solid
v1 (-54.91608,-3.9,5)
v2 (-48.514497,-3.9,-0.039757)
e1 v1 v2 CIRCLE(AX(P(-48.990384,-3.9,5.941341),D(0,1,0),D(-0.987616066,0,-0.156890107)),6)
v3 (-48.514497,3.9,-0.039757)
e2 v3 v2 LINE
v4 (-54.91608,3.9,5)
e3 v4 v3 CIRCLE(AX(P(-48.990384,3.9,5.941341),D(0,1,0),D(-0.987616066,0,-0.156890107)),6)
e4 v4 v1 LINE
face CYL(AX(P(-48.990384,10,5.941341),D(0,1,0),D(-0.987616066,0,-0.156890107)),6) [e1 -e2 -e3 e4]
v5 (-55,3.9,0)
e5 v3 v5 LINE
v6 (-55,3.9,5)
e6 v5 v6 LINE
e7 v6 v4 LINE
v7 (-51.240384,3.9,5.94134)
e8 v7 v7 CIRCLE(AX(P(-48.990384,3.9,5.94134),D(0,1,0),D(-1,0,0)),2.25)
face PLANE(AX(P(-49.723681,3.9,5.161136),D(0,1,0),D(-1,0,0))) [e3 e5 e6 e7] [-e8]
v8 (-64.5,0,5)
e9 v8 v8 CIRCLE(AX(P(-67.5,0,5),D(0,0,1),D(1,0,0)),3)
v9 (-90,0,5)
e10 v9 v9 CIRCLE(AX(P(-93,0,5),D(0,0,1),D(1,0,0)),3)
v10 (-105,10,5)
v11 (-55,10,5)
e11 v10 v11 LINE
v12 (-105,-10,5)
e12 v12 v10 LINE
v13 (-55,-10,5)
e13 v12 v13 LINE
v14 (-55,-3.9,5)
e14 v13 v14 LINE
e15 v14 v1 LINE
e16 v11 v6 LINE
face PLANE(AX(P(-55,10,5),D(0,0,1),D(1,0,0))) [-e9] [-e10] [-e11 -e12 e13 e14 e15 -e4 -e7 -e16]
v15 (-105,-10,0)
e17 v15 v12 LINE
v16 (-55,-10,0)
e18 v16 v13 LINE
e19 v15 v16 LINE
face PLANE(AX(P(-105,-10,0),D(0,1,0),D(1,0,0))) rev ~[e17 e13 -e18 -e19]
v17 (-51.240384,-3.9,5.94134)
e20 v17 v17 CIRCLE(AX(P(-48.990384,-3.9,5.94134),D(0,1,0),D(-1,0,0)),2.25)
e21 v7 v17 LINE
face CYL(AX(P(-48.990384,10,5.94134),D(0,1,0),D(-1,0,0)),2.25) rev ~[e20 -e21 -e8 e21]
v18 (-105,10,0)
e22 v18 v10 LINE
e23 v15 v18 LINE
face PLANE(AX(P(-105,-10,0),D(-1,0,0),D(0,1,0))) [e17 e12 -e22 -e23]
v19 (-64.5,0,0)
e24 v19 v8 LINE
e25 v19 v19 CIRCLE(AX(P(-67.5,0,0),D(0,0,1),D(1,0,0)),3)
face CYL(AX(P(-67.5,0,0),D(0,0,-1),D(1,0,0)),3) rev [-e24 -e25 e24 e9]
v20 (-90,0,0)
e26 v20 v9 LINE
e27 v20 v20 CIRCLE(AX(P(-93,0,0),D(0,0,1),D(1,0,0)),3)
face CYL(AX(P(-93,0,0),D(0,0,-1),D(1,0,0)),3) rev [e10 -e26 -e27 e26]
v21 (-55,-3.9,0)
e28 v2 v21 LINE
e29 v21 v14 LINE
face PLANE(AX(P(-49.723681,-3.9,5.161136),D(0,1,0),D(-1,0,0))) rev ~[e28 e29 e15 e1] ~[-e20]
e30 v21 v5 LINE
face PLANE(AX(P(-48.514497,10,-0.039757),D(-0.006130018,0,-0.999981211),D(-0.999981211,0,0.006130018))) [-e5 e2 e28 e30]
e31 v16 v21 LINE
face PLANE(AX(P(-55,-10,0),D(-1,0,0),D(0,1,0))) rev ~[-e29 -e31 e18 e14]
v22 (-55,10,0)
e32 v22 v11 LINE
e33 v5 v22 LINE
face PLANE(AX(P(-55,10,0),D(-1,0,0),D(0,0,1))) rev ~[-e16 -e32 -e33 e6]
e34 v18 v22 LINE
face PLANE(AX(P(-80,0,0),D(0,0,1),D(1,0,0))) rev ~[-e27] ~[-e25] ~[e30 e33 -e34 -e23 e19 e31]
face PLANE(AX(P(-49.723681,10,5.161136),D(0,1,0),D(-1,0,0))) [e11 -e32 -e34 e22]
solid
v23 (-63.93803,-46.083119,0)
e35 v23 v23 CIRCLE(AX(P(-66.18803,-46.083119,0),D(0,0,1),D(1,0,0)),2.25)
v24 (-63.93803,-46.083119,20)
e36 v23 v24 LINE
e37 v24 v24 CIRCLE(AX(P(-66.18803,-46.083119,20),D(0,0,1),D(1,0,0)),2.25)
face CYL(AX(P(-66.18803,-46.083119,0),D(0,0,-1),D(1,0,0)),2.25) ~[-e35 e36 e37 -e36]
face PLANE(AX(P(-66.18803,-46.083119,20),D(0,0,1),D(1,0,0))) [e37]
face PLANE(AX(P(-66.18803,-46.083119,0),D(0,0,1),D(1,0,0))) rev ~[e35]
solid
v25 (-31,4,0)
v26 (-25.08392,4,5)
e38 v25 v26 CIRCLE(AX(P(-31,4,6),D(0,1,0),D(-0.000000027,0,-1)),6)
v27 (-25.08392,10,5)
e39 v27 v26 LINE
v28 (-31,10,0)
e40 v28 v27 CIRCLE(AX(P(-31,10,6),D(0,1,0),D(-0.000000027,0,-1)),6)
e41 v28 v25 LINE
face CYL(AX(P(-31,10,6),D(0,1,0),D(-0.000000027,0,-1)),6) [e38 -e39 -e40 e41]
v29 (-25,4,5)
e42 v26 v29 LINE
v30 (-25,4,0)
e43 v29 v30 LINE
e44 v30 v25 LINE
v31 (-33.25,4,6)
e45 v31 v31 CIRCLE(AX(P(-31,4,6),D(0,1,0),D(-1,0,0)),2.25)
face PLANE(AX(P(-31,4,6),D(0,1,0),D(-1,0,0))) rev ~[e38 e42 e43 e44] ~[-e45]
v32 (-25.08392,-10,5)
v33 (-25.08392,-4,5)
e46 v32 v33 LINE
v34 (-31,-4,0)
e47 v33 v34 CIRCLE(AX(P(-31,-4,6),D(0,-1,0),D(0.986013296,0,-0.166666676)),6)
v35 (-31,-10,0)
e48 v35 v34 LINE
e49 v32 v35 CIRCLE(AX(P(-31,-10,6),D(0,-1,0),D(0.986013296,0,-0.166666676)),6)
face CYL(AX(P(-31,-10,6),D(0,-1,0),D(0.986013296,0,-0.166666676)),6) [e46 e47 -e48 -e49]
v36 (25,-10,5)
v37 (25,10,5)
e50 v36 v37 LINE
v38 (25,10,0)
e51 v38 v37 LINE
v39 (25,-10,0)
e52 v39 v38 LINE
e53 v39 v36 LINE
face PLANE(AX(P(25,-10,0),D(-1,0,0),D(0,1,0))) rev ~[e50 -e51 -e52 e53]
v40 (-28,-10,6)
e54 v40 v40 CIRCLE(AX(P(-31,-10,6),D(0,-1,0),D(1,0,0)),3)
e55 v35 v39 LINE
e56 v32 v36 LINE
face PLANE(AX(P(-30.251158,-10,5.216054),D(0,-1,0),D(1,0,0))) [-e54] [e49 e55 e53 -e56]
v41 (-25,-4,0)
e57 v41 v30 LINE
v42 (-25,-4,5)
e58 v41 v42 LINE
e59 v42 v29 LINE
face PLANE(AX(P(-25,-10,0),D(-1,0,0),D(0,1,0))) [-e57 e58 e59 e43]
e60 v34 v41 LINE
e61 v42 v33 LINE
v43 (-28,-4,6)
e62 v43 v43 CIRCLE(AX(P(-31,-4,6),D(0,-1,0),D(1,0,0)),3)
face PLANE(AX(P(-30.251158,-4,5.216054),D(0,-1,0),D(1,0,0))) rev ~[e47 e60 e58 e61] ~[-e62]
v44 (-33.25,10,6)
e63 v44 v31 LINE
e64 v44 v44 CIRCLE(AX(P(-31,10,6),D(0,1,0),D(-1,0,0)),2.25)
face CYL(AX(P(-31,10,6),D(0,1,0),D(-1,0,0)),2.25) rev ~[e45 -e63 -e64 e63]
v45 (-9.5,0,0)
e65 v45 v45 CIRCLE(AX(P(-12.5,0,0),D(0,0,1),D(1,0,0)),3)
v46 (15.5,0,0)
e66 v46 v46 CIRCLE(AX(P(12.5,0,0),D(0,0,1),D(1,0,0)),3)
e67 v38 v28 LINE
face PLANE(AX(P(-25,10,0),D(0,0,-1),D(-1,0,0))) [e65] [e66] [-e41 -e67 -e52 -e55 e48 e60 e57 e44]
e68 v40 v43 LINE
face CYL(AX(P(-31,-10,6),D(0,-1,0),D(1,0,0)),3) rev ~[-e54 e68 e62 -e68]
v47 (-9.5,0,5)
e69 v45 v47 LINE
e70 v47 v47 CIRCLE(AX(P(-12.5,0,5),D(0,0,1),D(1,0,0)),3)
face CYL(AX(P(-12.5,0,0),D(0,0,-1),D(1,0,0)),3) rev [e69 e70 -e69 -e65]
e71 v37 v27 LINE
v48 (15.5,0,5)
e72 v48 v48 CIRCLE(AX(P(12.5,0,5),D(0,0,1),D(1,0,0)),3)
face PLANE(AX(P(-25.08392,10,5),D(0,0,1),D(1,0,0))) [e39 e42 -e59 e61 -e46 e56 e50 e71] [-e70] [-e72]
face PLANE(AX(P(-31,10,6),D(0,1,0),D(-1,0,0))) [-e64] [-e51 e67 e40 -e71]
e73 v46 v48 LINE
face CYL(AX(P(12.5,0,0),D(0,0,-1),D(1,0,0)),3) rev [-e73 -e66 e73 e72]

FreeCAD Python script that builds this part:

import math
import FreeCAD as App
import Part
import Sketcher
from FreeCAD import Vector
Q = App.Units.Quantity


def add_polygon(sketch, points):
    """Adds a closed chain of lines whose ends are joined by coincident constraints."""
    first, n = sketch.GeometryCount, len(points)
    for a, b in zip(points, points[1:] + points[:1]):
        sketch.addGeometry(Part.LineSegment(App.Vector(*a, 0), App.Vector(*b, 0)), False)
    for i in range(n):
        sketch.addConstraint(Sketcher.Constraint("Coincident", first + i, 2, first + (i + 1) % n, 1))

doc = App.newDocument("Part")
body = doc.addObject("PartDesign::Body", "Body")
body.AllowCompound = True

sketch1 = body.newObject("Sketcher::SketchObject", "Sketch")
sketch1.AttachmentSupport = (doc.getObject("XY_Plane"), [""])
sketch1.MapMode = "FlatFace"
add_polygon(sketch1, [(-25, 10), (-25, -10), (25, -10), (25, 10)])
sketch1.addGeometry(Part.Circle(Vector(-12.5, 0, 0), Vector(0, 0, 1), 3), False)
sketch1.addGeometry(Part.Circle(Vector(12.5, 0, 0), Vector(0, 0, 1), 3), False)
add_polygon(sketch1, [(-105, 10), (-105, -10), (-55, -10), (-55, 10)])
sketch1.addGeometry(Part.Circle(Vector(-93, 0, 0), Vector(0, 0, 1), 3), False)
sketch1.addGeometry(Part.Circle(Vector(-67.5, 0, 0), Vector(0, 0, 1), 3), False)
sketch1.addConstraint(Sketcher.Constraint("Vertical", 0))
sketch1.addConstraint(Sketcher.Constraint("Horizontal", 1))
sketch1.addConstraint(Sketcher.Constraint("Vertical", 2))
sketch1.addConstraint(Sketcher.Constraint("Horizontal", 3))
sketch1.addConstraint(Sketcher.Constraint("Vertical", 6))
sketch1.addConstraint(Sketcher.Constraint("Horizontal", 7))
sketch1.addConstraint(Sketcher.Constraint("Vertical", 8))
sketch1.addConstraint(Sketcher.Constraint("Horizontal", 9))
sketch1.addConstraint(Sketcher.Constraint("Equal", 4, 5))
sketch1.addConstraint(Sketcher.Constraint("Equal", 5, 10))
sketch1.addConstraint(Sketcher.Constraint("Equal", 10, 11))
sketch1.addConstraint(Sketcher.Constraint("Symmetric", 4, 3, 5, 3, -1, 1))
sketch1.addConstraint(Sketcher.Constraint("Symmetric", 0, 2, 2, 2, -1, 1))
sketch1.addConstraint(Sketcher.Constraint("PointOnObject", 4, 3, -1))
sketch1.addConstraint(Sketcher.Constraint("PointOnObject", 10, 3, -1))
sketch1.addConstraint(Sketcher.Constraint("PointOnObject", 11, 3, -1))
sketch1.addConstraint(Sketcher.Constraint("Horizontal", 1, 2, 6, 2))
sketch1.addConstraint(Sketcher.Constraint("Horizontal", 3, 2, 8, 2))
sketch1.addConstraint(Sketcher.Constraint("Equal", 3, 7))
sketch1.addConstraint(Sketcher.Constraint("Diameter", 4, Q("6 mm")))
sketch1.addConstraint(Sketcher.Constraint("DistanceX", 1, 1, 1, 2, Q("50 mm")))
sketch1.addConstraint(Sketcher.Constraint("DistanceY", 0, 2, 0, 1, Q("20 mm")))
sketch1.addConstraint(Sketcher.Constraint("DistanceX", 10, 3, -1, 1, Q("93 mm")))
sketch1.addConstraint(Sketcher.Constraint("DistanceX", 6, 2, -1, 1, Q("105 mm")))
sketch1.addConstraint(Sketcher.Constraint("DistanceX", 4, 3, 5, 3, Q("25 mm")))
sketch1.addConstraint(Sketcher.Constraint("DistanceX", 11, 3, 4, 3, Q("55 mm")))
pad1 = body.newObject("PartDesign::Pad", "Pad")
pad1.Profile = sketch1
pad1.Length = 5

sketch2 = body.newObject("Sketcher::SketchObject", "Sketch001")
sketch2.AttachmentSupport = (doc.getObject("XZ_Plane"), [""])
sketch2.MapMode = "FlatFace"
sketch2.AttachmentOffset = App.Placement(Vector(0, 0, 10), App.Rotation())
sketch2.addGeometry(Part.LineSegment(Vector(-25, 5, 0), Vector(-25.08, 5, 0)), False)
sketch2.addGeometry(Part.ArcOfCircle(Part.Circle(Vector(-31, 6, 0), Vector(0, 0, 1), 6), math.radians(-10), math.radians(270)), False)
sketch2.addGeometry(Part.LineSegment(Vector(-31, 0, 0), Vector(-25, 0, 0)), False)
sketch2.addGeometry(Part.LineSegment(Vector(-25, 0, 0), Vector(-25, 5, 0)), False)
sketch2.addGeometry(Part.Circle(Vector(-31, 6, 0), Vector(0, 0, 1), 3), False)
sketch2.addConstraint(Sketcher.Constraint("Coincident", 0, 2, 1, 1))
sketch2.addConstraint(Sketcher.Constraint("Tangent", 1, 2, 2, 1))
sketch2.addConstraint(Sketcher.Constraint("Coincident", 2, 2, 3, 1))
sketch2.addConstraint(Sketcher.Constraint("Coincident", 3, 2, 0, 1))
sketch2.addConstraint(Sketcher.Constraint("Horizontal", 0))
sketch2.addConstraint(Sketcher.Constraint("Horizontal", 2))
sketch2.addConstraint(Sketcher.Constraint("Vertical", 3))
sketch2.addConstraint(Sketcher.Constraint("Coincident", 4, 3, 1, 3))
sketch2.addConstraint(Sketcher.Constraint("PointOnObject", 1, 2, -1))
sketch2.addConstraint(Sketcher.Constraint("Diameter", 4, Q("6 mm")))
sketch2.addConstraint(Sketcher.Constraint("Radius", 1, Q("6 mm")))
sketch2.addConstraint(Sketcher.Constraint("DistanceX", 2, 1, 2, 2, Q("6 mm")))
sketch2.addConstraint(Sketcher.Constraint("DistanceY", 3, 1, 3, 2, Q("5 mm")))
sketch2.addConstraint(Sketcher.Constraint("DistanceX", 1, 3, -1, 1, Q("31 mm")))
pad2 = body.newObject("PartDesign::Pad", "Pad001")
pad2.Profile = sketch2
pad2.Length = 6
pad2.Reversed = True

sketch3 = body.newObject("Sketcher::SketchObject", "Sketch002")
sketch3.AttachmentSupport = (doc.getObject("XZ_Plane"), [""])
sketch3.MapMode = "FlatFace"
sketch3.AttachmentOffset = App.Placement(Vector(0, 0, -10), App.Rotation())
sketch3.addGeometry(Part.LineSegment(Vector(-25.08, 5, 0), Vector(-25, 5, 0)), False)
sketch3.addGeometry(Part.LineSegment(Vector(-25, 5, 0), Vector(-25, 0, 0)), False)
sketch3.addGeometry(Part.LineSegment(Vector(-25, 0, 0), Vector(-31, 0, 0)), False)
sketch3.addGeometry(Part.ArcOfCircle(Part.Circle(Vector(-31, 6, 0), Vector(0, 0, 1), 6), math.radians(-10), math.radians(270)), False)
sketch3.addGeometry(Part.Circle(Vector(-31, 6, 0), Vector(0, 0, 1), 3), False)
sketch3.addConstraint(Sketcher.Constraint("Coincident", 0, 2, 1, 1))
sketch3.addConstraint(Sketcher.Constraint("Coincident", 1, 2, 2, 1))
sketch3.addConstraint(Sketcher.Constraint("Tangent", 2, 2, 3, 2))
sketch3.addConstraint(Sketcher.Constraint("Coincident", 3, 1, 0, 1))
sketch3.addConstraint(Sketcher.Constraint("Horizontal", 0))
sketch3.addConstraint(Sketcher.Constraint("Vertical", 1))
sketch3.addConstraint(Sketcher.Constraint("Horizontal", 2))
sketch3.addConstraint(Sketcher.Constraint("Coincident", 4, 3, 3, 3))
sketch3.addConstraint(Sketcher.Constraint("PointOnObject", 1, 2, -1))
sketch3.addConstraint(Sketcher.Constraint("Diameter", 4, Q("6 mm")))
sketch3.addConstraint(Sketcher.Constraint("Radius", 3, Q("6 mm")))
sketch3.addConstraint(Sketcher.Constraint("DistanceX", 2, 2, 2, 1, Q("6 mm")))
sketch3.addConstraint(Sketcher.Constraint("DistanceY", 1, 2, 1, 1, Q("5 mm")))
sketch3.addConstraint(Sketcher.Constraint("DistanceX", 3, 3, -1, 1, Q("31 mm")))
pad3 = body.newObject("PartDesign::Pad", "Pad002")
pad3.Profile = sketch3
pad3.Length = 6

sketch4 = body.newObject("Sketcher::SketchObject", "Sketch003")
sketch4.AttachmentSupport = (doc.getObject("XZ_Plane"), [""])
sketch4.MapMode = "FlatFace"
sketch4.AttachmentOffset = App.Placement(Vector(0, 0, -10), App.Rotation())
sketch4.addGeometry(Part.LineSegment(Vector(-55, 0, 0), Vector(-55, 5, 0)), False)
sketch4.addGeometry(Part.LineSegment(Vector(-55, 5, 0), Vector(-54.92, 5, 0)), False)
sketch4.addGeometry(Part.ArcOfCircle(Part.Circle(Vector(-48.99, 5.94, 0), Vector(0, 0, 1), 6), math.radians(-85), math.radians(189)), False)
sketch4.addGeometry(Part.LineSegment(Vector(-48.51, -0.04, 0), Vector(-55, 0, 0)), False)
sketch4.addGeometry(Part.Circle(Vector(-48.99, 5.94, 0), Vector(0, 0, 1), 2.25), False)
sketch4.addConstraint(Sketcher.Constraint("Coincident", 0, 2, 1, 1))
sketch4.addConstraint(Sketcher.Constraint("Coincident", 1, 2, 2, 2))
sketch4.addConstraint(Sketcher.Constraint("Coincident", 2, 1, 3, 1))
sketch4.addConstraint(Sketcher.Constraint("Coincident", 3, 2, 0, 1))
sketch4.addConstraint(Sketcher.Constraint("Vertical", 0))
sketch4.addConstraint(Sketcher.Constraint("Horizontal", 1))
sketch4.addConstraint(Sketcher.Constraint("Coincident", 4, 3, 2, 3))
sketch4.addConstraint(Sketcher.Constraint("PointOnObject", 3, 2, -1))
sketch4.addConstraint(Sketcher.Constraint("Radius", 2, Q("6 mm")))
sketch4.addConstraint(Sketcher.Constraint("Diameter", 4, Q("4.5 mm")))
sketch4.addConstraint(Sketcher.Constraint("DistanceY", 0, 1, 0, 2, Q("5 mm")))
sketch4.addConstraint(Sketcher.Constraint("DistanceX", 0, 2, -1, 1, Q("55 mm")))
sketch4.addConstraint(Sketcher.Constraint("DistanceX", 1, 1, 1, 2, Q("0.08392 mm")))
sketch4.addConstraint(Sketcher.Constraint("DistanceY", -1, 1, 2, 3, Q("5.941341 mm")))
sketch4.addConstraint(Sketcher.Constraint("Distance", 3, Q("6.485625 mm")))
pad4 = body.newObject("PartDesign::Pad", "Pad003")
pad4.Profile = sketch4
pad4.Length = 13.9

sketch5 = body.newObject("Sketcher::SketchObject", "Sketch004")
sketch5.AttachmentSupport = (doc.getObject("XZ_Plane"), [""])
sketch5.MapMode = "FlatFace"
sketch5.AttachmentOffset = App.Placement(Vector(0, 0, -10), App.Rotation())
sketch5.addGeometry(Part.LineSegment(Vector(-55, 0, 0), Vector(-55, 5, 0)), False)
sketch5.addGeometry(Part.LineSegment(Vector(-55, 5, 0), Vector(-54.92, 5, 0)), False)
sketch5.addGeometry(Part.ArcOfCircle(Part.Circle(Vector(-48.99, 5.94, 0), Vector(0, 0, 1), 6), math.radians(-85), math.radians(189)), False)
sketch5.addGeometry(Part.LineSegment(Vector(-48.51, -0.04, 0), Vector(-55, 0, 0)), False)
sketch5.addGeometry(Part.Circle(Vector(-48.99, 5.94, 0), Vector(0, 0, 1), 2.25), False)
sketch5.addConstraint(Sketcher.Constraint("Coincident", 0, 2, 1, 1))
sketch5.addConstraint(Sketcher.Constraint("Coincident", 1, 2, 2, 2))
sketch5.addConstraint(Sketcher.Constraint("Coincident", 2, 1, 3, 1))
sketch5.addConstraint(Sketcher.Constraint("Coincident", 3, 2, 0, 1))
sketch5.addConstraint(Sketcher.Constraint("Vertical", 0))
sketch5.addConstraint(Sketcher.Constraint("Horizontal", 1))
sketch5.addConstraint(Sketcher.Constraint("Coincident", 4, 3, 2, 3))
sketch5.addConstraint(Sketcher.Constraint("PointOnObject", 3, 2, -1))
sketch5.addConstraint(Sketcher.Constraint("Radius", 2, Q("6 mm")))
sketch5.addConstraint(Sketcher.Constraint("Diameter", 4, Q("4.5 mm")))
sketch5.addConstraint(Sketcher.Constraint("DistanceY", 0, 1, 0, 2, Q("5 mm")))
sketch5.addConstraint(Sketcher.Constraint("DistanceX", 0, 2, -1, 1, Q("55 mm")))
sketch5.addConstraint(Sketcher.Constraint("DistanceX", 1, 1, 1, 2, Q("0.08392 mm")))
sketch5.addConstraint(Sketcher.Constraint("DistanceY", -1, 1, 2, 3, Q("5.941341 mm")))
sketch5.addConstraint(Sketcher.Constraint("Distance", 3, Q("6.485625 mm")))
pocket1 = body.newObject("PartDesign::Pocket", "Pocket")
pocket1.Profile = sketch5
pocket1.Length = 6.1
pocket1.Reversed = True

sketch6 = body.newObject("Sketcher::SketchObject", "Sketch005")
sketch6.AttachmentSupport = (doc.getObject("XZ_Plane"), [""])
sketch6.MapMode = "FlatFace"
sketch6.AttachmentOffset = App.Placement(Vector(0, 0, -10), App.Rotation())
sketch6.addGeometry(Part.Circle(Vector(-31, 6, 0), Vector(0, 0, 1), 3), False)
sketch6.addGeometry(Part.Circle(Vector(-31, 6, 0), Vector(0, 0, 1), 2.2), False)
sketch6.addConstraint(Sketcher.Constraint("Coincident", 1, 3, 0, 3))
sketch6.addConstraint(Sketcher.Constraint("Diameter", 0, Q("6 mm")))
sketch6.addConstraint(Sketcher.Constraint("Diameter", 1, Q("4.5 mm")))
sketch6.addConstraint(Sketcher.Constraint("DistanceX", 0, 3, -1, 1, Q("31 mm")))
sketch6.addConstraint(Sketcher.Constraint("DistanceY", -1, 1, 0, 3, Q("6 mm")))
pad5 = body.newObject("PartDesign::Pad", "Pad004")
pad5.Profile = sketch6
pad5.Length = 6
body2 = doc.addObject("PartDesign::Body", "Body001")

sketch7 = body2.newObject("Sketcher::SketchObject", "Sketch006")
sketch7.AttachmentSupport = (doc.getObject("XY_Plane001"), [""])
sketch7.MapMode = "FlatFace"
sketch7.addGeometry(Part.Circle(Vector(-66.2, -46.1, 0), Vector(0, 0, 1), 2.2), False)
sketch7.addConstraint(Sketcher.Constraint("Diameter", 0, Q("4.5 mm")))
sketch7.addConstraint(Sketcher.Constraint("DistanceX", 0, 3, -1, 1, Q("66.18803 mm")))
sketch7.addConstraint(Sketcher.Constraint("DistanceY", 0, 3, -1, 1, Q("46.083119 mm")))
pad6 = body2.newObject("PartDesign::Pad", "Pad005")
pad6.Profile = sketch7
pad6.Length = 20

doc.recompute()
